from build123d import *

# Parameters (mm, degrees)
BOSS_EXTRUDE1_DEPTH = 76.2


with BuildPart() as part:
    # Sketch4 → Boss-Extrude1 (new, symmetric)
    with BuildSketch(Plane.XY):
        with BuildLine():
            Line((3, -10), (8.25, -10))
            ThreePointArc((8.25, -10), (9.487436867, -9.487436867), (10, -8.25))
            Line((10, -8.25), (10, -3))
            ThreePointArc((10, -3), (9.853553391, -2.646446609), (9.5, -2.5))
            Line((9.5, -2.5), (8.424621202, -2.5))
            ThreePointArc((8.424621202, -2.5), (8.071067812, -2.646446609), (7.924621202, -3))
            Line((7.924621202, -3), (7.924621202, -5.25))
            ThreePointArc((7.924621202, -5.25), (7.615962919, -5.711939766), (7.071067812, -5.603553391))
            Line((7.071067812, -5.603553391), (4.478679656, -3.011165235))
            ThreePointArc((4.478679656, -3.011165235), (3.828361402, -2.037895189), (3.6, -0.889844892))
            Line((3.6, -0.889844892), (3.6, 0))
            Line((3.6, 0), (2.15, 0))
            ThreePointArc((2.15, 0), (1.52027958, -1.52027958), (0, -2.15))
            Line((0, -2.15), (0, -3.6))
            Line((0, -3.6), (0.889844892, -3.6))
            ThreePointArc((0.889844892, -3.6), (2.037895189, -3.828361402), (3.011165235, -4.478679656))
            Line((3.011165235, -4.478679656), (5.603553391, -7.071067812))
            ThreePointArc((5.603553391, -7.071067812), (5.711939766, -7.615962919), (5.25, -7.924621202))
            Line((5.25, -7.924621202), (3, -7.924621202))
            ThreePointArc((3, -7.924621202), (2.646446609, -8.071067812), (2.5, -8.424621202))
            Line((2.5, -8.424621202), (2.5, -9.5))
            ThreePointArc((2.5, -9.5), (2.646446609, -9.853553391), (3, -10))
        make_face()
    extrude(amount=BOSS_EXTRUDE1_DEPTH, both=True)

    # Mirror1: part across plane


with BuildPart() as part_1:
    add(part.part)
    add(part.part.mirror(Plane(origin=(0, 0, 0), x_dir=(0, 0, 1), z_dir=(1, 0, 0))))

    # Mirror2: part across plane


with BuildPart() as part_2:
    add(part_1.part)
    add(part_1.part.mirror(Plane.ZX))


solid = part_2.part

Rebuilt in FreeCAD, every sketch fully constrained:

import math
import FreeCAD as App
import Part
import Sketcher

doc = App.newDocument("Part")
params = doc.addObject("Spreadsheet::Sheet", "Params")
for row, (alias, value) in enumerate([
    ("sketch1_radius", "3 mm"),
    ("sketch1_radius2", "0.5 mm"),
    ("sketch1_radius3", "1.75 mm"),
    ("sketch1_radius4", "2.15 mm"),
    ("sketch1_width", "1.45 mm"),
    ("pad1_length", "152.4 mm"),
], start=1):
    params.set(f"A{row}", alias)
    params.set(f"B{row}", "=" + value)
    params.setAlias(f"B{row}", alias)

body = doc.addObject("PartDesign::Body", "Body")

sketch1 = body.newObject("Sketcher::SketchObject", "Sketch")
sketch1.AttachmentSupport = (doc.getObject("XY_Plane"), [""])
sketch1.MapMode = "FlatFace"
sketch1.addGeometry([
    Part.LineSegment(App.Vector(3, -10, 0), App.Vector(8.25, -10, 0)),
    Part.ArcOfCircle(Part.Circle(App.Vector(8.25, -8.25, 0), App.Vector(0, 0, 1), 1.75), math.radians(-90), math.radians(0)),
    Part.LineSegment(App.Vector(10, -8.25, 0), App.Vector(10, -3, 0)),
    Part.ArcOfCircle(Part.Circle(App.Vector(9.5, -3, 0), App.Vector(0, 0, 1), 0.5), math.radians(0), math.radians(90)),
    Part.LineSegment(App.Vector(9.5, -2.5, 0), App.Vector(8.424621, -2.5, 0)),
    Part.ArcOfCircle(Part.Circle(App.Vector(8.424621, -3, 0), App.Vector(0, 0, 1), 0.5), math.radians(90), math.radians(180)),
    Part.LineSegment(App.Vector(7.924621, -3, 0), App.Vector(7.924621, -5.25, 0)),
    Part.ArcOfCircle(Part.Circle(App.Vector(7.424621, -5.25, 0), App.Vector(0, 0, 1), 0.5), math.radians(-135), math.radians(0)),
    Part.LineSegment(App.Vector(7.071068, -5.603553, 0), App.Vector(4.47868, -3.011165, 0)),
    Part.ArcOfCircle(Part.Circle(App.Vector(6.6, -0.889845, 0), App.Vector(0, 0, 1), 3), math.radians(180), math.radians(225)),
    Part.LineSegment(App.Vector(3.6, -0.889845, 0), App.Vector(3.6, 0, 0)),
    Part.LineSegment(App.Vector(3.6, 0, 0), App.Vector(2.15, 0, 0)),
    Part.ArcOfCircle(Part.Circle(App.Vector(0, 0, 0), App.Vector(0, 0, 1), 2.15), math.radians(-90), math.radians(0)),
    Part.LineSegment(App.Vector(0, -2.15, 0), App.Vector(0, -3.6, 0)),
    Part.LineSegment(App.Vector(0, -3.6, 0), App.Vector(0.889845, -3.6, 0)),
    Part.ArcOfCircle(Part.Circle(App.Vector(0.889845, -6.6, 0), App.Vector(0, 0, 1), 3), math.radians(45), math.radians(90)),
    Part.LineSegment(App.Vector(3.011165, -4.47868, 0), App.Vector(5.603553, -7.071068, 0)),
    Part.ArcOfCircle(Part.Circle(App.Vector(5.25, -7.424621, 0), App.Vector(0, 0, 1), 0.5), math.radians(-90), math.radians(45)),
    Part.LineSegment(App.Vector(5.25, -7.924621, 0), App.Vector(3, -7.924621, 0)),
    Part.ArcOfCircle(Part.Circle(App.Vector(3, -8.424621, 0), App.Vector(0, 0, 1), 0.5), math.radians(90), math.radians(180)),
    Part.LineSegment(App.Vector(2.5, -8.424621, 0), App.Vector(2.5, -9.5, 0)),
    Part.ArcOfCircle(Part.Circle(App.Vector(3, -9.5, 0), App.Vector(0, 0, 1), 0.5), math.radians(180), math.radians(270)),
], False)
sketch1.addConstraint([
    Sketcher.Constraint("Tangent", 0, 2, 1, 1),
    Sketcher.Constraint("Tangent", 1, 2, 2, 1),
    Sketcher.Constraint("Tangent", 2, 2, 3, 1),
    Sketcher.Constraint("Tangent", 3, 2, 4, 1),
    Sketcher.Constraint("Tangent", 4, 2, 5, 1),
    Sketcher.Constraint("Tangent", 5, 2, 6, 1),
    Sketcher.Constraint("Tangent", 6, 2, 7, 2),
    Sketcher.Constraint("Tangent", 7, 1, 8, 1),
    Sketcher.Constraint("Tangent", 8, 2, 9, 2),
    Sketcher.Constraint("Tangent", 9, 1, 10, 1),
    Sketcher.Constraint("Coincident", 10, 2, 11, 1),
    Sketcher.Constraint("Coincident", 11, 2, 12, 2),
    Sketcher.Constraint("Coincident", 12, 1, 13, 1),
    Sketcher.Constraint("Coincident", 13, 2, 14, 1),
    Sketcher.Constraint("Tangent", 14, 2, 15, 2),
    Sketcher.Constraint("Tangent", 15, 1, 16, 1),
    Sketcher.Constraint("Tangent", 16, 2, 17, 2),
    Sketcher.Constraint("Tangent", 17, 1, 18, 1),
    Sketcher.Constraint("Tangent", 18, 2, 19, 1),
    Sketcher.Constraint("Tangent", 19, 2, 20, 1),
    Sketcher.Constraint("Tangent", 20, 2, 21, 1),
    Sketcher.Constraint("Tangent", 21, 2, 0, 1),
    Sketcher.Constraint("Horizontal", 0),
    Sketcher.Constraint("Vertical", 2),
    Sketcher.Constraint("Horizontal", 4),
    Sketcher.Constraint("Vertical", 6),
    Sketcher.Constraint("Vertical", 10),
    Sketcher.Constraint("Horizontal", 11),
    Sketcher.Constraint("Vertical", 13),
    Sketcher.Constraint("Horizontal", 14),
    Sketcher.Constraint("Horizontal", 18),
    Sketcher.Constraint("Vertical", 20),
    Sketcher.Constraint("Coincident", 12, 3, -1, 1),
    Sketcher.Constraint("Equal", 3, 5),
    Sketcher.Constraint("Equal", 5, 7),
    Sketcher.Constraint("Equal", 9, 15),
    Sketcher.Constraint("Equal", 7, 17),
    Sketcher.Constraint("Equal", 17, 19),
    Sketcher.Constraint("Equal", 19, 21),
    Sketcher.Constraint("PointOnObject", 10, 2, -1),
    Sketcher.Constraint("PointOnObject", 12, 1, -2),
    Sketcher.Constraint("Parallel", 8, 16),
    Sketcher.Constraint("Equal", 0, 2),
    Sketcher.Constraint("Equal", 18, 6),
    Sketcher.Constraint("Equal", 14, 10),
    Sketcher.Constraint("Equal", 11, 13),
    Sketcher.Constraint("Equal", 4, 20),
    Sketcher.Constraint("Equal", 8, 16),
    Sketcher.Constraint("Radius", 9, 3.0),
    Sketcher.Constraint("Radius", 3, 0.5),
    Sketcher.Constraint("Radius", 1, 1.75),
    Sketcher.Constraint("Radius", 12, 2.15),
    Sketcher.Constraint("DistanceY", 3, 3, -1, 1, 3.0),
    Sketcher.Constraint("DistanceY", 0, 2, -1, 1, 10.0),
    Sketcher.Constraint("DistanceY", 1, 3, 7, 3, 3.0),
    Sketcher.Constraint("DistanceX", 11, 2, 11, 1, 1.45),
    Sketcher.Constraint("DistanceX", 4, 2, 4, 1, 1.075379),
])
sketch1.setExpression("Constraints[48]", "Params.sketch1_radius")
sketch1.setExpression("Constraints[49]", "Params.sketch1_radius2")
sketch1.setExpression("Constraints[50]", "Params.sketch1_radius3")
sketch1.setExpression("Constraints[51]", "Params.sketch1_radius4")
sketch1.setExpression("Constraints[55]", "Params.sketch1_width")
pad1 = body.newObject("PartDesign::Pad", "Pad")
pad1.Profile = sketch1
pad1.setExpression("Length", "Params.pad1_length")
pad1.Midplane = True
body2 = doc.addObject("PartDesign::Body", "Body001")
doc.recompute()

body2.BaseFeature = body
doc.recompute()

mirroring = doc.addObject("Part::Mirroring", "Mirroring")
mirroring.Source = body
mirroring.Base = App.Vector(0, 0, 0)
mirroring.Normal = App.Vector(1, 0, 0)
body3 = doc.addObject("PartDesign::Body", "Body002")
body3.BaseFeature = mirroring
boolean = body2.newObject("PartDesign::Boolean", "Boolean")
boolean.Type = "Fuse"
boolean.addObjects([body3])
doc.recompute()
body4 = doc.addObject("PartDesign::Body", "Body003")
doc.recompute()

body4.BaseFeature = body2
doc.recompute()

mirroring2 = doc.addObject("Part::Mirroring", "Mirroring001")
mirroring2.Source = body2
mirroring2.Base = App.Vector(0, 0, 0)
mirroring2.Normal = App.Vector(0, 1, 0)
body5 = doc.addObject("PartDesign::Body", "Body004")
body5.BaseFeature = mirroring2
boolean2 = body4.newObject("PartDesign::Boolean", "Boolean001")
boolean2.Type = "Fuse"
boolean2.addObjects([body5])
doc.recompute()
mirroring.Visibility = False
mirroring2.Visibility = False

doc.recompute()
